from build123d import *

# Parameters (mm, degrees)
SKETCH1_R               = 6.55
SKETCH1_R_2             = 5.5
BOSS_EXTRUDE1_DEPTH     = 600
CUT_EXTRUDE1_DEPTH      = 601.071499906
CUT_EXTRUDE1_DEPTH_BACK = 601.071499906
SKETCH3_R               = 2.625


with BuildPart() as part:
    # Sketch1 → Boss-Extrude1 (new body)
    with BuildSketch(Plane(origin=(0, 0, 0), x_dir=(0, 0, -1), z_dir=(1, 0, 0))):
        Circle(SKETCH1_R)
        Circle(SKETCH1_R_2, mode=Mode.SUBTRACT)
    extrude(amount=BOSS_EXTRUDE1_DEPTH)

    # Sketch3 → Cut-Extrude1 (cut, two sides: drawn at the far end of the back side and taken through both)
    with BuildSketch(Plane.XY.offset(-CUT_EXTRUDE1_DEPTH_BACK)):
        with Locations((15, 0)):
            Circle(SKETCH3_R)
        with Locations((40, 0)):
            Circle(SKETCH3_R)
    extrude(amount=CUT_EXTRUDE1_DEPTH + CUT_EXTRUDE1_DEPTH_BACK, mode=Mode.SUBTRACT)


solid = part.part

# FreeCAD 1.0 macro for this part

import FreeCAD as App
import Part
import Sketcher

V = App.Vector

doc = App.newDocument("Part")
body = doc.addObject("PartDesign::Body", "Body")

# Sketch on YZ plane
sketch1 = doc.addObject("Sketcher::SketchObject", "Sketch")
body.addObject(sketch1)
sketch1.AttachmentSupport = (doc.YZ_Plane, [""])
sketch1.MapMode = "FlatFace"
sketch1.addGeometry([
    Part.Circle(V(0, 0, 0), V(0, 0, 1), 6.55),
    Part.Circle(V(0, 0, 0), V(0, 0, 1), 5.5),
], False)
sketch1.addConstraint([
    Sketcher.Constraint("Coincident", 0, 3, -1, 1),
    Sketcher.Constraint("Coincident", 1, 3, -1, 1),
    Sketcher.Constraint("Diameter", 1, 11.0),
    Sketcher.Constraint("Diameter", 0, 13.1),
])
pad1 = doc.addObject("PartDesign::Pad", "Pad")
body.addObject(pad1)
pad1.Profile = sketch1
pad1.Length = 600

# Sketch on XY plane
sketch2 = doc.addObject("Sketcher::SketchObject", "Sketch001")
body.addObject(sketch2)
sketch2.AttachmentSupport = (doc.XY_Plane, [""])
sketch2.MapMode = "FlatFace"
sketch2.addGeometry([
    Part.Circle(V(15, 0, 0), V(0, 0, 1), 2.625),
    Part.Circle(V(40, 0, 0), V(0, 0, 1), 2.625),
], False)
sketch2.addConstraint([
    Sketcher.Constraint("Equal", 0, 1),
    Sketcher.Constraint("PointOnObject", 0, 3, -1),
    Sketcher.Constraint("PointOnObject", 1, 3, -1),
    Sketcher.Constraint("Diameter", 0, 5.25),
    Sketcher.Constraint("DistanceX", -1, 1, 0, 3, 15.0),
    Sketcher.Constraint("DistanceX", -1, 1, 1, 3, 40.0),
])
pocket1 = doc.addObject("PartDesign::Pocket", "Pocket")
body.addObject(pocket1)
pocket1.Profile = sketch2
pocket1.Type = "ThroughAll"
pocket1.Midplane = True

doc.recompute()
